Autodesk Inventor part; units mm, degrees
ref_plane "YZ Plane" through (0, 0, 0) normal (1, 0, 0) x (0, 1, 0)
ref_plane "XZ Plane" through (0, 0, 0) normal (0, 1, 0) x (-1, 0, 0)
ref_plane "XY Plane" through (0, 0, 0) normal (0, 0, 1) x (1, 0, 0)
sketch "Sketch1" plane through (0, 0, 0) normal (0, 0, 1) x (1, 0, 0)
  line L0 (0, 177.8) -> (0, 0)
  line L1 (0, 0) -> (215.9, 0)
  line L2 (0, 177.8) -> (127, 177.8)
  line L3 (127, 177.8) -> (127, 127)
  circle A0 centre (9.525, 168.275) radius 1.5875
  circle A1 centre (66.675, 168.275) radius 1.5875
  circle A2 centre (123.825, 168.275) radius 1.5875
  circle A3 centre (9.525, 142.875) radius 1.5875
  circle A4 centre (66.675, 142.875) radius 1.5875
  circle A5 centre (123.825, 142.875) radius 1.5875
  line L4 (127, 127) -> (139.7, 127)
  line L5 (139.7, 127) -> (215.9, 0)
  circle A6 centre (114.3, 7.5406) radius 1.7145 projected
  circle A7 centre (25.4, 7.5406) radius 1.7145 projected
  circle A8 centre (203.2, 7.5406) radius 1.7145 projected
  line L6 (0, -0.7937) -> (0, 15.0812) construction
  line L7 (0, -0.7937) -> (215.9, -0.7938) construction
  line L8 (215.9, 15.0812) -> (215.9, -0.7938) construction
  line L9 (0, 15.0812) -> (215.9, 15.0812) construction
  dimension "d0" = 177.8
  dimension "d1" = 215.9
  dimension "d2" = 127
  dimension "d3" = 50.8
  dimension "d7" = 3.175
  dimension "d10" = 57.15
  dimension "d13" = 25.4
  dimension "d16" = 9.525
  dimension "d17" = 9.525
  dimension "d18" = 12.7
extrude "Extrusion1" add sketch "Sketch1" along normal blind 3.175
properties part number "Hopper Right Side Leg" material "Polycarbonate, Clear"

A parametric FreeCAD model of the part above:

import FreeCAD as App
import Part
import Sketcher

V = App.Vector
Q = App.Units.Quantity

doc = App.newDocument("Part")
params = doc.addObject("Spreadsheet::Sheet", "Params")
for row, (alias, value) in enumerate([
    ("sketch1_width", "5 in"),
    ("sketch1_height", "7 in"),
    ("sketch1_height2", "2 in"),
    ("sketch1_diameter", "0.125 in"),
    ("sketch1_width2", "8.5 in"),
    ("pad1_length", "0.125 in"),
], start=1):
    params.set(f"A{row}", alias)
    params.set(f"B{row}", "=" + value)
    params.setAlias(f"B{row}", alias)

body = doc.addObject("PartDesign::Body", "Body")

# Sketch on XY plane
sketch1 = body.newObject("Sketcher::SketchObject", "Sketch")
sketch1.AttachmentSupport = (doc.getObject("XY_Plane"), [""])
sketch1.MapMode = "FlatFace"
sketch1.addGeometry([
    Part.LineSegment(V(127, 177.8, 0), V(0, 177.8, 0)),  # 0
    Part.LineSegment(V(0, 177.8, 0), V(0, 0, 0)),  # 1
    Part.LineSegment(V(0, 0, 0), V(215.9, 0, 0)),  # 2
    Part.LineSegment(V(215.9, 0, 0), V(139.7, 127, 0)),  # 3
    Part.LineSegment(V(139.7, 127, 0), V(127, 127, 0)),  # 4
    Part.LineSegment(V(127, 127, 0), V(127, 177.8, 0)),  # 5
    Part.Circle(V(25.4, 7.5, 0), V(0, 0, 1), 1.7),  # 6
    Part.Circle(V(114.3, 7.5, 0), V(0, 0, 1), 1.7),  # 7
    Part.Circle(V(203.2, 7.5, 0), V(0, 0, 1), 1.7),  # 8
    Part.Circle(V(9.5, 142.9, 0), V(0, 0, 1), 1.6),  # 9
    Part.Circle(V(9.5, 168.3, 0), V(0, 0, 1), 1.6),  # 10
    Part.Circle(V(66.7, 142.9, 0), V(0, 0, 1), 1.6),  # 11
    Part.Circle(V(66.7, 168.3, 0), V(0, 0, 1), 1.6),  # 12
    Part.Circle(V(123.8, 142.9, 0), V(0, 0, 1), 1.6),  # 13
    Part.Circle(V(123.8, 168.3, 0), V(0, 0, 1), 1.6),  # 14
], False)
sketch1.addConstraint([
    Sketcher.Constraint("Coincident", 0, 2, 1, 1),
    Sketcher.Constraint("Coincident", 1, 2, 2, 1),
    Sketcher.Constraint("Coincident", 2, 2, 3, 1),
    Sketcher.Constraint("Coincident", 3, 2, 4, 1),
    Sketcher.Constraint("Coincident", 4, 2, 5, 1),
    Sketcher.Constraint("Coincident", 5, 2, 0, 1),
    Sketcher.Constraint("Horizontal", 0),
    Sketcher.Constraint("Vertical", 1),
    Sketcher.Constraint("Horizontal", 2),
    Sketcher.Constraint("Horizontal", 4),
    Sketcher.Constraint("Vertical", 5),
    Sketcher.Constraint("Coincident", 1, 2, -1, 1),
    Sketcher.Constraint("Equal", 6, 7),
    Sketcher.Constraint("Equal", 7, 8),
    Sketcher.Constraint("Equal", 9, 10),
    Sketcher.Constraint("Equal", 10, 11),
    Sketcher.Constraint("Equal", 11, 12),
    Sketcher.Constraint("Equal", 12, 13),
    Sketcher.Constraint("Equal", 13, 14),
    Sketcher.Constraint("Horizontal", 6, 3, 7, 3),
    Sketcher.Constraint("Horizontal", 7, 3, 8, 3),
    Sketcher.Constraint("Horizontal", 9, 3, 11, 3),
    Sketcher.Constraint("Horizontal", 10, 3, 12, 3),
    Sketcher.Constraint("Horizontal", 11, 3, 13, 3),
    Sketcher.Constraint("Horizontal", 12, 3, 14, 3),
    Sketcher.Constraint("Vertical", 9, 3, 10, 3),
    Sketcher.Constraint("Vertical", 11, 3, 12, 3),
    Sketcher.Constraint("Vertical", 13, 3, 14, 3),
    Sketcher.Constraint("DistanceX", 0, 2, 0, 1, Q("5 in")),
    Sketcher.Constraint("DistanceY", 1, 2, 1, 1, Q("7 in")),
    Sketcher.Constraint("DistanceY", 5, 1, 5, 2, Q("2 in")),
    Sketcher.Constraint("Diameter", 9, Q("0.125 in")),
    Sketcher.Constraint("DistanceX", 2, 1, 2, 2, Q("8.5 in")),
    Sketcher.Constraint("DistanceX", 4, 2, 4, 1, Q("0.5 in")),
    Sketcher.Constraint("DistanceX", -1, 1, 6, 3, Q("1 in")),
    Sketcher.Constraint("DistanceX", 6, 3, 8, 3, Q("7 in")),
    Sketcher.Constraint("DistanceY", 9, 3, 10, 3, Q("1 in")),
    Sketcher.Constraint("DistanceX", 7, 3, 3, 2, Q("1 in")),
    Sketcher.Constraint("DistanceX", 9, 3, 11, 3, Q("2.25 in")),
    Sketcher.Constraint("DistanceX", 11, 3, 13, 3, Q("2.25 in")),
    Sketcher.Constraint("Diameter", 6, Q("0.135 in")),
    Sketcher.Constraint("DistanceX", -1, 1, 9, 3, Q("0.375 in")),
    Sketcher.Constraint("DistanceY", 10, 3, 0, 2, Q("0.375 in")),
    Sketcher.Constraint("DistanceY", -1, 1, 6, 3, Q("0.296874 in")),
])
sketch1.setExpression("Constraints[28]", "Params.sketch1_width")
sketch1.setExpression("Constraints[29]", "Params.sketch1_height")
sketch1.setExpression("Constraints[30]", "Params.sketch1_height2")
sketch1.setExpression("Constraints[31]", "Params.sketch1_diameter")
sketch1.setExpression("Constraints[32]", "Params.sketch1_width2")
pad1 = body.newObject("PartDesign::Pad", "Pad")
pad1.Profile = sketch1
pad1.setExpression("Length", "Params.pad1_length")

doc.recompute()
